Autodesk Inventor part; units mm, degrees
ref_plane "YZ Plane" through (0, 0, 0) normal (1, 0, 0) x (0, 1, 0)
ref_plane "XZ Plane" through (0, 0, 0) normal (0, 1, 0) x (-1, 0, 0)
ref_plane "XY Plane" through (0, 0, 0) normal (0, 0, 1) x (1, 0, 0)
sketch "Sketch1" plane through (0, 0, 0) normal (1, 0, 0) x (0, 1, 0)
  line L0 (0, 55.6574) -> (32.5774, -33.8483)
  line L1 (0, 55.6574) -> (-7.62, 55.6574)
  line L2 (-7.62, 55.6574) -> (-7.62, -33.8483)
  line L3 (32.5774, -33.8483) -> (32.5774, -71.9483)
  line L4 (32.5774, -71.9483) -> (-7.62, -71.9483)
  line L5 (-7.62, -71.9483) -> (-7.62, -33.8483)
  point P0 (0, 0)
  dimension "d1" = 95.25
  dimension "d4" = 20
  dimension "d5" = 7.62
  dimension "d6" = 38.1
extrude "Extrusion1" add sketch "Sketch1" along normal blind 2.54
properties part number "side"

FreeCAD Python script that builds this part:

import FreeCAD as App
import Part
import Sketcher
Q = App.Units.Quantity


def add_polygon(sketch, points):
    """Adds a closed chain of lines whose ends are joined by coincident constraints."""
    first, n = sketch.GeometryCount, len(points)
    for a, b in zip(points, points[1:] + points[:1]):
        sketch.addGeometry(Part.LineSegment(App.Vector(*a, 0), App.Vector(*b, 0)), False)
    for i in range(n):
        sketch.addConstraint(Sketcher.Constraint("Coincident", first + i, 2, first + (i + 1) % n, 1))

doc = App.newDocument("Part")
body = doc.addObject("PartDesign::Body", "Body")

# Sketch on YZ plane
sketch1 = body.newObject("Sketcher::SketchObject", "Sketch")
sketch1.AttachmentSupport = (doc.getObject("YZ_Plane"), [""])
sketch1.MapMode = "FlatFace"
add_polygon(sketch1, [(32.5774, -33.8483), (0, 55.6574), (-7.62, 55.6574), (-7.62, -71.9483), (32.5774, -71.9483)])  # lines 0-4
sketch1.addConstraint(Sketcher.Constraint("Horizontal", 1))
sketch1.addConstraint(Sketcher.Constraint("Vertical", 2))
sketch1.addConstraint(Sketcher.Constraint("Horizontal", 3))
sketch1.addConstraint(Sketcher.Constraint("Vertical", 4))
sketch1.addConstraint(Sketcher.Constraint("PointOnObject", 0, 2, -2))
sketch1.addConstraint(Sketcher.Constraint("DistanceX", 1, 2, 1, 1, Q("0.3 in")))
sketch1.addConstraint(Sketcher.Constraint("DistanceY", 4, 1, 4, 2, Q("1.5 in")))
sketch1.addConstraint(Sketcher.Constraint("Distance", 0, Q("3.75 in")))
sketch1.addConstraint(Sketcher.Constraint("Angle", 0, Q("110 deg")))
sketch1.addConstraint(Sketcher.Constraint("DistanceY", 2, 2, -1, 1, Q("2.8326 in")))
pad1 = body.newObject("PartDesign::Pad", "Pad")
pad1.Profile = sketch1
pad1.Length = Q("0.1 in")

doc.recompute()
